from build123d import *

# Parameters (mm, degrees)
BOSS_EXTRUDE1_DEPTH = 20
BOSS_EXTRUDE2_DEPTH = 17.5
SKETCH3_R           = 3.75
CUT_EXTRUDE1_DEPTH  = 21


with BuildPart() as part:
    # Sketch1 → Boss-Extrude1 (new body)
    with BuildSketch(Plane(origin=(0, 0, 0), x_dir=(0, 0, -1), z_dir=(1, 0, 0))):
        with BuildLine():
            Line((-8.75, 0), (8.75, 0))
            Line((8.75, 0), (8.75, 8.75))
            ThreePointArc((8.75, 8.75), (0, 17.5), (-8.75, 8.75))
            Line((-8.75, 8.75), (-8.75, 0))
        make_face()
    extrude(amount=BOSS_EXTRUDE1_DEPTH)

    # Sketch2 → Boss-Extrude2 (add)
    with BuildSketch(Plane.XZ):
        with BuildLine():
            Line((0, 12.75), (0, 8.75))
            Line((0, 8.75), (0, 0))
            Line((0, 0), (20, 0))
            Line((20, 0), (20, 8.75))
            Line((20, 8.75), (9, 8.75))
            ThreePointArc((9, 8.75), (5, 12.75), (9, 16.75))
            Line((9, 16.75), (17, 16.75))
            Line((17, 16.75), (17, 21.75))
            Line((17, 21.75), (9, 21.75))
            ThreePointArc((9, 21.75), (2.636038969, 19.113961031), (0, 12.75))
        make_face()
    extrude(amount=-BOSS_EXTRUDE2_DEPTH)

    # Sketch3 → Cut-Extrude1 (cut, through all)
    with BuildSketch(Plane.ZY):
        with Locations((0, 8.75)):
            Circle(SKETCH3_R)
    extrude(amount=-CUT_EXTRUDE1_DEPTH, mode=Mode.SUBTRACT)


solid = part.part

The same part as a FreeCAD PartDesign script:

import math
import FreeCAD as App
import Part
import Sketcher
from FreeCAD import Vector

doc = App.newDocument("Part")
body = doc.addObject("PartDesign::Body", "Body")

# Sketch on YZ plane
sketch1 = body.newObject("Sketcher::SketchObject", "Sketch")
sketch1.AttachmentSupport = (doc.getObject("YZ_Plane"), [""])
sketch1.MapMode = "FlatFace"
sketch1.addGeometry(Part.LineSegment(Vector(0, 8.75, 0), Vector(0, -8.75, 0)), False)
sketch1.addGeometry(Part.LineSegment(Vector(0, -8.75, 0), Vector(8.75, -8.75, 0)), False)
sketch1.addGeometry(Part.ArcOfCircle(Part.Circle(Vector(8.75, 0, 0), Vector(0, 0, 1), 8.75), math.radians(-90), math.radians(90)), False)
sketch1.addGeometry(Part.LineSegment(Vector(8.75, 8.75, 0), Vector(0, 8.75, 0)), False)
sketch1.addConstraint(Sketcher.Constraint("Coincident", 0, 2, 1, 1))
sketch1.addConstraint(Sketcher.Constraint("Tangent", 1, 2, 2, 1))
sketch1.addConstraint(Sketcher.Constraint("Tangent", 2, 2, 3, 1))
sketch1.addConstraint(Sketcher.Constraint("Coincident", 3, 2, 0, 1))
sketch1.addConstraint(Sketcher.Constraint("Vertical", 0))
sketch1.addConstraint(Sketcher.Constraint("Horizontal", 1))
sketch1.addConstraint(Sketcher.Constraint("Horizontal", 3))
sketch1.addConstraint(Sketcher.Constraint("Symmetric", 0, 2, 3, 2, -1, 1))
sketch1.addConstraint(Sketcher.Constraint("Radius", 2, 8.75))
sketch1.addConstraint(Sketcher.Constraint("DistanceX", 1, 1, 1, 2, 8.75))
pad1 = body.newObject("PartDesign::Pad", "Pad")
pad1.Profile = sketch1
pad1.Length = 20

# Sketch on XZ plane
sketch2 = body.newObject("Sketcher::SketchObject", "Sketch001")
sketch2.AttachmentSupport = (doc.getObject("XZ_Plane"), [""])
sketch2.MapMode = "FlatFace"
sketch2.addGeometry(Part.LineSegment(Vector(0, 12.75, 0), Vector(0, 0, 0)), False)
sketch2.addGeometry(Part.LineSegment(Vector(0, 0, 0), Vector(20, 0, 0)), False)
sketch2.addGeometry(Part.LineSegment(Vector(20, 0, 0), Vector(20, 8.75, 0)), False)
sketch2.addGeometry(Part.LineSegment(Vector(20, 8.75, 0), Vector(9, 8.75, 0)), False)
sketch2.addGeometry(Part.ArcOfCircle(Part.Circle(Vector(9, 12.75, 0), Vector(0, 0, 1), 4), math.radians(90), math.radians(270)), False)
sketch2.addGeometry(Part.LineSegment(Vector(9, 16.75, 0), Vector(17, 16.75, 0)), False)
sketch2.addGeometry(Part.LineSegment(Vector(17, 16.75, 0), Vector(17, 21.75, 0)), False)
sketch2.addGeometry(Part.LineSegment(Vector(17, 21.75, 0), Vector(9, 21.75, 0)), False)
sketch2.addGeometry(Part.ArcOfCircle(Part.Circle(Vector(9, 12.75, 0), Vector(0, 0, 1), 9), math.radians(90), math.radians(180)), False)
sketch2.addConstraint(Sketcher.Constraint("Coincident", 0, 2, 1, 1))
sketch2.addConstraint(Sketcher.Constraint("Coincident", 1, 2, 2, 1))
sketch2.addConstraint(Sketcher.Constraint("Coincident", 2, 2, 3, 1))
sketch2.addConstraint(Sketcher.Constraint("Tangent", 3, 2, 4, 2))
sketch2.addConstraint(Sketcher.Constraint("Tangent", 4, 1, 5, 1))
sketch2.addConstraint(Sketcher.Constraint("Coincident", 5, 2, 6, 1))
sketch2.addConstraint(Sketcher.Constraint("Coincident", 6, 2, 7, 1))
sketch2.addConstraint(Sketcher.Constraint("Tangent", 7, 2, 8, 1))
sketch2.addConstraint(Sketcher.Constraint("Tangent", 8, 2, 0, 1))
sketch2.addConstraint(Sketcher.Constraint("Vertical", 0))
sketch2.addConstraint(Sketcher.Constraint("Horizontal", 1))
sketch2.addConstraint(Sketcher.Constraint("Vertical", 2))
sketch2.addConstraint(Sketcher.Constraint("Horizontal", 3))
sketch2.addConstraint(Sketcher.Constraint("Horizontal", 5))
sketch2.addConstraint(Sketcher.Constraint("Vertical", 6))
sketch2.addConstraint(Sketcher.Constraint("Horizontal", 7))
sketch2.addConstraint(Sketcher.Constraint("Coincident", 0, 2, -1, 1))
sketch2.addConstraint(Sketcher.Constraint("Coincident", 8, 3, 4, 3))
sketch2.addConstraint(Sketcher.Constraint("Radius", 4, 4.0))
sketch2.addConstraint(Sketcher.Constraint("Radius", 8, 9.0))
sketch2.addConstraint(Sketcher.Constraint("DistanceX", 1, 1, 1, 2, 20.0))
sketch2.addConstraint(Sketcher.Constraint("DistanceX", 5, 1, 5, 2, 8.0))
sketch2.addConstraint(Sketcher.Constraint("DistanceY", 0, 2, 0, 1, 12.75))
pad2 = body.newObject("PartDesign::Pad", "Pad001")
pad2.Profile = sketch2
pad2.Length = 17.5
pad2.Reversed = True

# Sketch on YZ plane
sketch3 = body.newObject("Sketcher::SketchObject", "Sketch002")
sketch3.AttachmentSupport = (doc.getObject("YZ_Plane"), [""])
sketch3.MapMode = "FlatFace"
sketch3.addGeometry(Part.Circle(Vector(8.75, 0, 0), Vector(0, 0, 1), 3.75), False)
sketch3.addConstraint(Sketcher.Constraint("PointOnObject", 0, 3, -1))
sketch3.addConstraint(Sketcher.Constraint("Diameter", 0, 7.5))
sketch3.addConstraint(Sketcher.Constraint("DistanceX", -1, 1, 0, 3, 8.75))
pocket1 = body.newObject("PartDesign::Pocket", "Pocket")
pocket1.Profile = sketch3
pocket1.Type = "ThroughAll"
pocket1.Reversed = True

doc.recompute()
